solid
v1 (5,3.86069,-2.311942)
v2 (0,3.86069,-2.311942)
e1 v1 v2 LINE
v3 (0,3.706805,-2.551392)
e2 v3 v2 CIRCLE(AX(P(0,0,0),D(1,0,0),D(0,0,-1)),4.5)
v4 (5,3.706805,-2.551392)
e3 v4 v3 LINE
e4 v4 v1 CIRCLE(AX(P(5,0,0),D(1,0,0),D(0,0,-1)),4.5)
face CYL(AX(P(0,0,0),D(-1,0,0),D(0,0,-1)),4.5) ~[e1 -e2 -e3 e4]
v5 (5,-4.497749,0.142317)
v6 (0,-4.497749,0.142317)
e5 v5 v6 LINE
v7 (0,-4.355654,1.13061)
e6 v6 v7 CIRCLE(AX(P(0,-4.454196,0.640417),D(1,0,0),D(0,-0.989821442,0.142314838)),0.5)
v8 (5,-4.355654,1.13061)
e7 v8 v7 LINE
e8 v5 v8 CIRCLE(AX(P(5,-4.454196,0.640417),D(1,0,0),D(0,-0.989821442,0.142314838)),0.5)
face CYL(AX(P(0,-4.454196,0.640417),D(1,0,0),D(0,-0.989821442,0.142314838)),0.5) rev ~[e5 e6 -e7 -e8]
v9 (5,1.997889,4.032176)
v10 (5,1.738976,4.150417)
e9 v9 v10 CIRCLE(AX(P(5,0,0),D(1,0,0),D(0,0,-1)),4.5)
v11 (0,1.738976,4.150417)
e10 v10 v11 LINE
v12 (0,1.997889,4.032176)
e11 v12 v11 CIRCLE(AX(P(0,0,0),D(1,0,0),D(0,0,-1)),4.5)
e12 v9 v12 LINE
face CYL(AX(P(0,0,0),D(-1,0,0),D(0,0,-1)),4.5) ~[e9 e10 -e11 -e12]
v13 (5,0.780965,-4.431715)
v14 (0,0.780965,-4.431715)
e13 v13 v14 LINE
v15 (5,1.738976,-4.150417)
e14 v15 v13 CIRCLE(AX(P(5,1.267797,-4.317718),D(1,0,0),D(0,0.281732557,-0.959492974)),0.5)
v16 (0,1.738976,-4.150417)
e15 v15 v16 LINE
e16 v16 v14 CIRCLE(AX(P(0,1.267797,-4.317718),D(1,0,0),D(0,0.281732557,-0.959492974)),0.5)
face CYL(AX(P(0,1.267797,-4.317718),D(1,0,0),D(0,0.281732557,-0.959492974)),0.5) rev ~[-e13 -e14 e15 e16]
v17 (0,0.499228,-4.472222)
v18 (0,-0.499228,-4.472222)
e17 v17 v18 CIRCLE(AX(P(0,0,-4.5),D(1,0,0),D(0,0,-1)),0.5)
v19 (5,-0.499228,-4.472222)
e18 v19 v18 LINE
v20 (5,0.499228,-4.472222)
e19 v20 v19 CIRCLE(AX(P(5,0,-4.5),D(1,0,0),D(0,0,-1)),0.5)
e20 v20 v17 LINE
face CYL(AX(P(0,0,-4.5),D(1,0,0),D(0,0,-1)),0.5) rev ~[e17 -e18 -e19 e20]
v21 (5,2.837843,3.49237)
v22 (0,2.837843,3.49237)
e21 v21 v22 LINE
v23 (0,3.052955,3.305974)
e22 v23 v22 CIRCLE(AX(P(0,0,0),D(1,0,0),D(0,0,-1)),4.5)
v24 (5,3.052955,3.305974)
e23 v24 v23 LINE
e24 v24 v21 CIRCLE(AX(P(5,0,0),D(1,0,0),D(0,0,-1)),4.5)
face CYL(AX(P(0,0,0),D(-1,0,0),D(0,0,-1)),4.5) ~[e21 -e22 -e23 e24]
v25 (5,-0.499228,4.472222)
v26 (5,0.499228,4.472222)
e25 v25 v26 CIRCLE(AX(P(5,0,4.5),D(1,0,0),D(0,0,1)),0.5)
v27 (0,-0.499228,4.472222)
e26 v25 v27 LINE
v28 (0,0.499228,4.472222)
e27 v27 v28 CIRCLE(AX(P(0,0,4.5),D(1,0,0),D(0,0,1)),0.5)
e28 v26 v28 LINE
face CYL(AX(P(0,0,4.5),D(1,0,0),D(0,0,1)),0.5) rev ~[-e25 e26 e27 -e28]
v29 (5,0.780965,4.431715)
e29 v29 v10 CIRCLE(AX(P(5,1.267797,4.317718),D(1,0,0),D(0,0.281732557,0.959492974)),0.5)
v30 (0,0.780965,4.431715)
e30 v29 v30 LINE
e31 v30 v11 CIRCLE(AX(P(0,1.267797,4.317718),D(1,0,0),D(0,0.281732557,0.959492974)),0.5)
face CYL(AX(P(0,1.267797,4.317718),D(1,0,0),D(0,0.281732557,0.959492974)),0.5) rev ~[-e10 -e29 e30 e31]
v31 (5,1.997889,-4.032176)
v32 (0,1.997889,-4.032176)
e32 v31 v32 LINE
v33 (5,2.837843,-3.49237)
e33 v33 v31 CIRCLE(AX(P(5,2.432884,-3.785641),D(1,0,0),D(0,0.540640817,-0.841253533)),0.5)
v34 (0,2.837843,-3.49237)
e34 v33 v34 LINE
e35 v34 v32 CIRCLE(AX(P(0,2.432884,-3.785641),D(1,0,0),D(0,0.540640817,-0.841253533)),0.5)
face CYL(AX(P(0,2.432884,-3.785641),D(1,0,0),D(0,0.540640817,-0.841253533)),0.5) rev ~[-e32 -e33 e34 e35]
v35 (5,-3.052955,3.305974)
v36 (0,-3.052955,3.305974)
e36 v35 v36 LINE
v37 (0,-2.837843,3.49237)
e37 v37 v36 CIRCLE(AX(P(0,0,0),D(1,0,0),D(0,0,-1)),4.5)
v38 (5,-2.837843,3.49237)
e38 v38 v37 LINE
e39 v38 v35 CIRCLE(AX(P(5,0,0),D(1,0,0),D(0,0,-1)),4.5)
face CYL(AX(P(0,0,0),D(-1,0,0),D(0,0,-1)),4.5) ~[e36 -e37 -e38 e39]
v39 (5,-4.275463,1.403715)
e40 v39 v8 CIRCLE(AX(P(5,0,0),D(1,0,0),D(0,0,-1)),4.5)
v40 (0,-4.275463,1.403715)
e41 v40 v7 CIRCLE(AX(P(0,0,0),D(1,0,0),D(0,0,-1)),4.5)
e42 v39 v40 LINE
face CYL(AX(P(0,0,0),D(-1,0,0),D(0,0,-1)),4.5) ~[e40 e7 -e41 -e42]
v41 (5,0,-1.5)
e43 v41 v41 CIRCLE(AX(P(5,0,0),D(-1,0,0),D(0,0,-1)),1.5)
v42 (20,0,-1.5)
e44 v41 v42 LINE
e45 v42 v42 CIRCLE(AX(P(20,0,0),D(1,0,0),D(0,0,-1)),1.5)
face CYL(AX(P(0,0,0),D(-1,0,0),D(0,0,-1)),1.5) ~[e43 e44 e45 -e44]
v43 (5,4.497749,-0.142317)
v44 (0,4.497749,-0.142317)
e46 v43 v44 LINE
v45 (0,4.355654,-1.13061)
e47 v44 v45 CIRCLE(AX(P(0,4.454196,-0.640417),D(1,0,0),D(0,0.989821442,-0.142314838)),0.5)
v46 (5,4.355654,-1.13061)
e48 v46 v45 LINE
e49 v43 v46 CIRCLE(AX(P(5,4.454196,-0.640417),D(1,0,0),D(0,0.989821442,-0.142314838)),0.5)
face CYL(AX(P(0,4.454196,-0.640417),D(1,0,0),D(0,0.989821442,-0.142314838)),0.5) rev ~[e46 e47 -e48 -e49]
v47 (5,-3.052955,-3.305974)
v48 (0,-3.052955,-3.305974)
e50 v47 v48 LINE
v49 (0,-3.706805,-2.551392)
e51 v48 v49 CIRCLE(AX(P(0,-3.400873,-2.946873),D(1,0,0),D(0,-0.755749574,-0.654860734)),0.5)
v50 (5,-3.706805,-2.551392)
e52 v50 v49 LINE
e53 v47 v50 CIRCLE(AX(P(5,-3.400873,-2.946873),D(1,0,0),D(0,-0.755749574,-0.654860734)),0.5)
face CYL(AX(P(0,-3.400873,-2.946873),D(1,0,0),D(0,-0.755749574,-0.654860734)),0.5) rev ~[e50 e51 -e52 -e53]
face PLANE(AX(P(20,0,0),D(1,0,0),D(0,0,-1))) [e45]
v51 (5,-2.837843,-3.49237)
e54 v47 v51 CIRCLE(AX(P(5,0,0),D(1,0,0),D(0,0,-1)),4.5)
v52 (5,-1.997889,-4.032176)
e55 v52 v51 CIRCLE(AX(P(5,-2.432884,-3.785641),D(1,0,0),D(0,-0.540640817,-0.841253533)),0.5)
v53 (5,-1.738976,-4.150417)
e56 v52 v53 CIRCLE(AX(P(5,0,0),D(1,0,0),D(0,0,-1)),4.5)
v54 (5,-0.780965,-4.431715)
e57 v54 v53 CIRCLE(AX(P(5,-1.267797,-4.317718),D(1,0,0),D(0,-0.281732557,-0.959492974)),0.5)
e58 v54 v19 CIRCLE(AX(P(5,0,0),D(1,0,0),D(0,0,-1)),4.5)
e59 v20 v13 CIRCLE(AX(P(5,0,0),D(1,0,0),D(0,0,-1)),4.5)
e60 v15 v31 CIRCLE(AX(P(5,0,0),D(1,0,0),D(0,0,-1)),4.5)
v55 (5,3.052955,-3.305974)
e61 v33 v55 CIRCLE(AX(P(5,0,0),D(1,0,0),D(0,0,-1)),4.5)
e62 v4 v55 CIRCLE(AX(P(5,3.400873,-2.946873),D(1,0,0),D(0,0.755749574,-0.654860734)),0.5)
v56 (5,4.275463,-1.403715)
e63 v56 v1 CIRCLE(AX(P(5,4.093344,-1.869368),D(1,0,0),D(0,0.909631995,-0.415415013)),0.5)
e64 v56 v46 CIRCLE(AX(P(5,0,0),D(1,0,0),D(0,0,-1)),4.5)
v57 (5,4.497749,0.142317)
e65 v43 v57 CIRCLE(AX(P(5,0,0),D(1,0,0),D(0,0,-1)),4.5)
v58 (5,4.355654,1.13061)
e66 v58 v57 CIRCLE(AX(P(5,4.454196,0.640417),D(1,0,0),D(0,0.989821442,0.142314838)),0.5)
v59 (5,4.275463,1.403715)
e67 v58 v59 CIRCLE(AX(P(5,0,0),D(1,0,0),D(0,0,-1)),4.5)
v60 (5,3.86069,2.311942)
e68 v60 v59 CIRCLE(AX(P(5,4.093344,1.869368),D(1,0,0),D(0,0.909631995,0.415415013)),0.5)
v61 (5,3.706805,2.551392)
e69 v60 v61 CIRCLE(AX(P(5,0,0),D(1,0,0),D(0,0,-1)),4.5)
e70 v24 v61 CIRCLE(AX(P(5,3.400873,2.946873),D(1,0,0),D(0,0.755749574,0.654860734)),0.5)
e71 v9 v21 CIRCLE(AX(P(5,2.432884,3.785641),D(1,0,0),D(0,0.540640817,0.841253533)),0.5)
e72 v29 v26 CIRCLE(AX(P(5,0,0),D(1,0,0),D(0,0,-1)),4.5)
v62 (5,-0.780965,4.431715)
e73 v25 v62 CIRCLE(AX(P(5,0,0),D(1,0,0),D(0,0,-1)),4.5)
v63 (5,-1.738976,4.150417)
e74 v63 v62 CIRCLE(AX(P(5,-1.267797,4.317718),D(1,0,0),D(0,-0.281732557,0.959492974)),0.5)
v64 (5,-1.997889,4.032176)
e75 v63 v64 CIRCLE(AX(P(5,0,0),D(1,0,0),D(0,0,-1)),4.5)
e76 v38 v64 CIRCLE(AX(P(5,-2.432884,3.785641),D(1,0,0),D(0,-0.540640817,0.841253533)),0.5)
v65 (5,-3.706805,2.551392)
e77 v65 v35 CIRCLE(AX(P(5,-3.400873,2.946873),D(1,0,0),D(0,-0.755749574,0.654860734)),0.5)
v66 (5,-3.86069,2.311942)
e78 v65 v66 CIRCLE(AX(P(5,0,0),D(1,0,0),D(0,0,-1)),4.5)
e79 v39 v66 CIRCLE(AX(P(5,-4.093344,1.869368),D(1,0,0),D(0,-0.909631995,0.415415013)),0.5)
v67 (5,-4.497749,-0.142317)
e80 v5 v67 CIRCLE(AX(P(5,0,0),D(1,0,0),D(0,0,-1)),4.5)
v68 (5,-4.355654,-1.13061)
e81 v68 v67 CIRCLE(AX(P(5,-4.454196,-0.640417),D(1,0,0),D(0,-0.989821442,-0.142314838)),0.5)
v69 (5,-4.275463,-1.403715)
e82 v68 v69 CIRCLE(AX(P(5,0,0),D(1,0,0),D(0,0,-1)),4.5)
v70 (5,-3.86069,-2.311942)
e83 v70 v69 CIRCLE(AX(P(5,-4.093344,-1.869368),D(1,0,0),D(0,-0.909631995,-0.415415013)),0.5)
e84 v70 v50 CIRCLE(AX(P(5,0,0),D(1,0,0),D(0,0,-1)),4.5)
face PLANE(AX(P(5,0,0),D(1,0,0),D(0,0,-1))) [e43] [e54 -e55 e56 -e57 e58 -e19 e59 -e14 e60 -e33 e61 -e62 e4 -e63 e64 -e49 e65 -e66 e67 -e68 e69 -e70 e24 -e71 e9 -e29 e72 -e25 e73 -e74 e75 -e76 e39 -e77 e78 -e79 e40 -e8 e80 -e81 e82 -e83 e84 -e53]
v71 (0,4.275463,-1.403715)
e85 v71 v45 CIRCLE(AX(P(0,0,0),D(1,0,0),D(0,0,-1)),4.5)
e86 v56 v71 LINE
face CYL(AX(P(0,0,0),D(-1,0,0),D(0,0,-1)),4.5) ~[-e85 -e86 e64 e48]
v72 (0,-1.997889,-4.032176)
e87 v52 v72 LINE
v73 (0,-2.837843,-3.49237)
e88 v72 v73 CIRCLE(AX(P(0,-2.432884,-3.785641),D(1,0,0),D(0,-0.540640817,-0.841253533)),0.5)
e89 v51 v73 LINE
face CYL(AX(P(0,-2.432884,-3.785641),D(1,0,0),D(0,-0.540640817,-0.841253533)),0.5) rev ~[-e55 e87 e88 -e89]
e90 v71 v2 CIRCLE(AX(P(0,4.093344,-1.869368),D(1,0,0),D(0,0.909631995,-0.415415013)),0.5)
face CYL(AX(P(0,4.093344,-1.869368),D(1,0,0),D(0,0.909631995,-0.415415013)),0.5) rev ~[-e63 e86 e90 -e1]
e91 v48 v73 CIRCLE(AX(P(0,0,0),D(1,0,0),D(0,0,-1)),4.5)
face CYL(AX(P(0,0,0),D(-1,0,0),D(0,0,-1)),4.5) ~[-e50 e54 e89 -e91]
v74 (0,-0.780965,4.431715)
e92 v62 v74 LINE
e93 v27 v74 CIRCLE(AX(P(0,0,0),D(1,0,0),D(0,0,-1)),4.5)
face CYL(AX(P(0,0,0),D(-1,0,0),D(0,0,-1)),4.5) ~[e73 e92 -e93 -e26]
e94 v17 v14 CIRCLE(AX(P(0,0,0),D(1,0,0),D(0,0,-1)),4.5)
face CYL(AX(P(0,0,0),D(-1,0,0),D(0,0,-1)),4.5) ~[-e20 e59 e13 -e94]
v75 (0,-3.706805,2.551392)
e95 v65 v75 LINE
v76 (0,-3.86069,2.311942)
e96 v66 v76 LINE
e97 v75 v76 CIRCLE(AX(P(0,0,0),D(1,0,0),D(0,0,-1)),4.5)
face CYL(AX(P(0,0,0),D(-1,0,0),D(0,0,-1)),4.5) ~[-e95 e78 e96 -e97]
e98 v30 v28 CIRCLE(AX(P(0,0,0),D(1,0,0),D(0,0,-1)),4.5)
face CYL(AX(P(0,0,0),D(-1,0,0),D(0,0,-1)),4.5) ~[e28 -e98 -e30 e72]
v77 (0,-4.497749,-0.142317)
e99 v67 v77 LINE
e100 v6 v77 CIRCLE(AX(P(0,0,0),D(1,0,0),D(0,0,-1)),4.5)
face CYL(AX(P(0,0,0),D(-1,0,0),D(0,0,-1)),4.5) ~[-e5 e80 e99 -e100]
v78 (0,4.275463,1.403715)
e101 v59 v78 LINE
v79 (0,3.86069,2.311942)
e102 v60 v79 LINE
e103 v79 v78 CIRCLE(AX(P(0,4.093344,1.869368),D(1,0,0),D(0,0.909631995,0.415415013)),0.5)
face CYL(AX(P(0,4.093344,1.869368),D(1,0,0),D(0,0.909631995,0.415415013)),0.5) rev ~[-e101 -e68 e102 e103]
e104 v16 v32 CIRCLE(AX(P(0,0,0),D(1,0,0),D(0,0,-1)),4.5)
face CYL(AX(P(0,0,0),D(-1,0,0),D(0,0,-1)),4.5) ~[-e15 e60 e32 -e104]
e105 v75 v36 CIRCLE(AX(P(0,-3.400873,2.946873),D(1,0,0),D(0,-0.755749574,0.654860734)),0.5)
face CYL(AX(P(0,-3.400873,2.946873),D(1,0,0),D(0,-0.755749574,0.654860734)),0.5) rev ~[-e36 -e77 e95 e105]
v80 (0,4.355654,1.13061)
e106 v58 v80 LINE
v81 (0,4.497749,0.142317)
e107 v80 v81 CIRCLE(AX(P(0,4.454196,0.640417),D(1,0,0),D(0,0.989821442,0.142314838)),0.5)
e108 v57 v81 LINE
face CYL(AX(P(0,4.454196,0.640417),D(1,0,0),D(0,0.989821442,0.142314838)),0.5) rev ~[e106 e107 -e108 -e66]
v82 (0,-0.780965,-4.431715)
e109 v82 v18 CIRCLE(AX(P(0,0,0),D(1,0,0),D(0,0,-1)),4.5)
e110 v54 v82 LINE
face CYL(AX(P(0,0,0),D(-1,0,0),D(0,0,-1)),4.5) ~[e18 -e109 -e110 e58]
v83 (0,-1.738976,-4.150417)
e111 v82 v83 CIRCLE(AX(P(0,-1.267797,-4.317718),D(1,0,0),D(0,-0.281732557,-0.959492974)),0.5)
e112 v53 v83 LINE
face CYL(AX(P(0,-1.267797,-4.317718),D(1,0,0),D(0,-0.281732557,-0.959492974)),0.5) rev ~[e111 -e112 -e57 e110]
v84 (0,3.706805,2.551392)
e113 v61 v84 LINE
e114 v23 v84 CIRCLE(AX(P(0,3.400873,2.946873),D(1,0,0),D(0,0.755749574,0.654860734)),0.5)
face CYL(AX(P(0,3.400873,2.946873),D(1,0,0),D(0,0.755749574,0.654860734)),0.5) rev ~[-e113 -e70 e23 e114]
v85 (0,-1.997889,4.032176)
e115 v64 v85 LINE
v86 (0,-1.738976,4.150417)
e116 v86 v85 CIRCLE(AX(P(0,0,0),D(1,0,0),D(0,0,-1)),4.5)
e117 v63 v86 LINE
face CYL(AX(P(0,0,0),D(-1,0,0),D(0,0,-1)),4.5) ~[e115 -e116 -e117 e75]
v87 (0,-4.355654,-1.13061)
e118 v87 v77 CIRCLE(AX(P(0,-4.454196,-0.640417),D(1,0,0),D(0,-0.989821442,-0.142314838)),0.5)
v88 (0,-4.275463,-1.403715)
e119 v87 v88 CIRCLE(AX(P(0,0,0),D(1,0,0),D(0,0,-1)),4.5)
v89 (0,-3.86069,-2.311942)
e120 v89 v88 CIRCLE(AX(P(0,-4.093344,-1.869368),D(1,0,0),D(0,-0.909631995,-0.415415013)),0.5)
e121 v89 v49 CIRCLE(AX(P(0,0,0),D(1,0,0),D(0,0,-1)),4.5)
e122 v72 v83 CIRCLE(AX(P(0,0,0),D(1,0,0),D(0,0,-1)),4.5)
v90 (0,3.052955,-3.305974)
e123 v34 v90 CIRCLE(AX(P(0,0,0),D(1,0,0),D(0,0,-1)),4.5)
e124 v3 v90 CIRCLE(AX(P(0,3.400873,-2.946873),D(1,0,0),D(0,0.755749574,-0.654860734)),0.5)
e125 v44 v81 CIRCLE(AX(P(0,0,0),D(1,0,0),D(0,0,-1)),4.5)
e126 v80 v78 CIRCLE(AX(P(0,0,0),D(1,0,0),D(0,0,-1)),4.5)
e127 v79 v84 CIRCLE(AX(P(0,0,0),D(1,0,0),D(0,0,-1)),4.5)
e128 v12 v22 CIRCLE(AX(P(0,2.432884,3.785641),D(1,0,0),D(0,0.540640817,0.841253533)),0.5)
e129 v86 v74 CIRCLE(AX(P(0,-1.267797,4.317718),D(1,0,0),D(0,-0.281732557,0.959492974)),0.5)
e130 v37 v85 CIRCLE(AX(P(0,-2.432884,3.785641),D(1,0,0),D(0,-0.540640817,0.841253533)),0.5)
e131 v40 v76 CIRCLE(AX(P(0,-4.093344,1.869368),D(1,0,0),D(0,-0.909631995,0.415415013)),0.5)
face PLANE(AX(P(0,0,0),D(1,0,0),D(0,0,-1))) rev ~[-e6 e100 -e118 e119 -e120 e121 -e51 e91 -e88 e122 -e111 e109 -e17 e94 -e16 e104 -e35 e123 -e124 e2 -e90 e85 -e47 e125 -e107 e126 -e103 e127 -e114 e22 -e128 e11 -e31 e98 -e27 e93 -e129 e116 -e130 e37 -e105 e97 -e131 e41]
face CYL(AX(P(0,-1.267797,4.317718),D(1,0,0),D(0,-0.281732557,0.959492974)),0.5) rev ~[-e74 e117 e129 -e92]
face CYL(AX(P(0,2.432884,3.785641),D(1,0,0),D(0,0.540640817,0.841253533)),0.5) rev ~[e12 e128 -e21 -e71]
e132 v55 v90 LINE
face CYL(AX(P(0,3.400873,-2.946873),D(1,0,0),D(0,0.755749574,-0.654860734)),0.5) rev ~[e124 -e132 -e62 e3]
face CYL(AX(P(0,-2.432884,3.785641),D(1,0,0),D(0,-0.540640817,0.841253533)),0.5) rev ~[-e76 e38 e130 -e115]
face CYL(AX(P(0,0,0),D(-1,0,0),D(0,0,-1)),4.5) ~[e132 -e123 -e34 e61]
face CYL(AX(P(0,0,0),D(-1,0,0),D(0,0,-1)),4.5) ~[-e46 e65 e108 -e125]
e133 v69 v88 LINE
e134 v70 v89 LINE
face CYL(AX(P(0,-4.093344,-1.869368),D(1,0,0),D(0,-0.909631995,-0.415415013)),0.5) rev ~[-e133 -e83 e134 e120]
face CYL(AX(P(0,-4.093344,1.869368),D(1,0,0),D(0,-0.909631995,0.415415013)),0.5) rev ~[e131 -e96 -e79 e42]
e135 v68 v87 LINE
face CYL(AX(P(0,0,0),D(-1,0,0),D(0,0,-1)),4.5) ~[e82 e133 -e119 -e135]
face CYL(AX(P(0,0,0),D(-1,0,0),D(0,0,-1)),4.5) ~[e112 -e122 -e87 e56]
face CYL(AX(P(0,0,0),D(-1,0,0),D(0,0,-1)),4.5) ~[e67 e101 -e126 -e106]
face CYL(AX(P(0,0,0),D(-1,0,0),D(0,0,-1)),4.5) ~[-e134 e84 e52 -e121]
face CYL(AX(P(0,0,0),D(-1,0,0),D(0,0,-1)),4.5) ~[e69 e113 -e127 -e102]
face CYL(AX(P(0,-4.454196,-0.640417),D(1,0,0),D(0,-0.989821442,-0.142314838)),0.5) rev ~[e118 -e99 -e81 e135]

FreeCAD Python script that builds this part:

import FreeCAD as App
import Part
import Sketcher
from FreeCAD import Vector

doc = App.newDocument("Part")
body = doc.addObject("PartDesign::Body", "Body")

# Sketch on YZ plane
sketch1 = doc.addObject("Sketcher::SketchObject", "Sketch")
body.addObject(sketch1)
sketch1.AttachmentSupport = (doc.YZ_Plane, [""])
sketch1.MapMode = "FlatFace"
sketch1.addGeometry(Part.Circle(Vector(0, 0, 0), Vector(0, 0, 1), 4.5), False)
sketch1.addConstraint([
    Sketcher.Constraint("Coincident", 0, 3, -1, 1),
    Sketcher.Constraint("Diameter", 0, 9.0),
])
pad1 = doc.addObject("PartDesign::Pad", "Pad")
body.addObject(pad1)
pad1.Profile = sketch1
pad1.Length = 5

# Sketch on YZ plane
sketch2 = doc.addObject("Sketcher::SketchObject", "Sketch001")
body.addObject(sketch2)
sketch2.AttachmentSupport = (doc.YZ_Plane, [""])
sketch2.MapMode = "FlatFace"
sketch2.addGeometry(Part.Circle(Vector(0, 0, 0), Vector(0, 0, 1), 1.5), False)
sketch2.addConstraint([
    Sketcher.Constraint("Coincident", 0, 3, -1, 1),
    Sketcher.Constraint("Diameter", 0, 3.0),
])
pad2 = doc.addObject("PartDesign::Pad", "Pad001")
body.addObject(pad2)
pad2.Profile = sketch2
pad2.Length = 20

# Sketch on YZ plane
sketch3 = doc.addObject("Sketcher::SketchObject", "Sketch002")
body.addObject(sketch3)
sketch3.AttachmentSupport = (doc.YZ_Plane, [""])
sketch3.MapMode = "FlatFace"
sketch3.addGeometry(Part.Circle(Vector(0, -4.5, 0), Vector(0, 0, 1), 0.5), False)
sketch3.addConstraint([
    Sketcher.Constraint("PointOnObject", 0, 3, -2),
    Sketcher.Constraint("Diameter", 0, 1.0),
    Sketcher.Constraint("DistanceY", 0, 3, -1, 1, 4.5),
])
pocket1 = doc.addObject("PartDesign::Pocket", "Pocket")
body.addObject(pocket1)
pocket1.Profile = sketch3
pocket1.Length = 10
pocket1.Midplane = True
doc.recompute()

polarpattern = doc.addObject("PartDesign::PolarPattern", "PolarPattern")
body.addObject(polarpattern)
polarpattern.Originals = [pocket1]
polarpattern.Axis = (doc.X_Axis, [""])
polarpattern.Angle = 360
polarpattern.Occurrences = 22
body.Tip = polarpattern

doc.recompute()
